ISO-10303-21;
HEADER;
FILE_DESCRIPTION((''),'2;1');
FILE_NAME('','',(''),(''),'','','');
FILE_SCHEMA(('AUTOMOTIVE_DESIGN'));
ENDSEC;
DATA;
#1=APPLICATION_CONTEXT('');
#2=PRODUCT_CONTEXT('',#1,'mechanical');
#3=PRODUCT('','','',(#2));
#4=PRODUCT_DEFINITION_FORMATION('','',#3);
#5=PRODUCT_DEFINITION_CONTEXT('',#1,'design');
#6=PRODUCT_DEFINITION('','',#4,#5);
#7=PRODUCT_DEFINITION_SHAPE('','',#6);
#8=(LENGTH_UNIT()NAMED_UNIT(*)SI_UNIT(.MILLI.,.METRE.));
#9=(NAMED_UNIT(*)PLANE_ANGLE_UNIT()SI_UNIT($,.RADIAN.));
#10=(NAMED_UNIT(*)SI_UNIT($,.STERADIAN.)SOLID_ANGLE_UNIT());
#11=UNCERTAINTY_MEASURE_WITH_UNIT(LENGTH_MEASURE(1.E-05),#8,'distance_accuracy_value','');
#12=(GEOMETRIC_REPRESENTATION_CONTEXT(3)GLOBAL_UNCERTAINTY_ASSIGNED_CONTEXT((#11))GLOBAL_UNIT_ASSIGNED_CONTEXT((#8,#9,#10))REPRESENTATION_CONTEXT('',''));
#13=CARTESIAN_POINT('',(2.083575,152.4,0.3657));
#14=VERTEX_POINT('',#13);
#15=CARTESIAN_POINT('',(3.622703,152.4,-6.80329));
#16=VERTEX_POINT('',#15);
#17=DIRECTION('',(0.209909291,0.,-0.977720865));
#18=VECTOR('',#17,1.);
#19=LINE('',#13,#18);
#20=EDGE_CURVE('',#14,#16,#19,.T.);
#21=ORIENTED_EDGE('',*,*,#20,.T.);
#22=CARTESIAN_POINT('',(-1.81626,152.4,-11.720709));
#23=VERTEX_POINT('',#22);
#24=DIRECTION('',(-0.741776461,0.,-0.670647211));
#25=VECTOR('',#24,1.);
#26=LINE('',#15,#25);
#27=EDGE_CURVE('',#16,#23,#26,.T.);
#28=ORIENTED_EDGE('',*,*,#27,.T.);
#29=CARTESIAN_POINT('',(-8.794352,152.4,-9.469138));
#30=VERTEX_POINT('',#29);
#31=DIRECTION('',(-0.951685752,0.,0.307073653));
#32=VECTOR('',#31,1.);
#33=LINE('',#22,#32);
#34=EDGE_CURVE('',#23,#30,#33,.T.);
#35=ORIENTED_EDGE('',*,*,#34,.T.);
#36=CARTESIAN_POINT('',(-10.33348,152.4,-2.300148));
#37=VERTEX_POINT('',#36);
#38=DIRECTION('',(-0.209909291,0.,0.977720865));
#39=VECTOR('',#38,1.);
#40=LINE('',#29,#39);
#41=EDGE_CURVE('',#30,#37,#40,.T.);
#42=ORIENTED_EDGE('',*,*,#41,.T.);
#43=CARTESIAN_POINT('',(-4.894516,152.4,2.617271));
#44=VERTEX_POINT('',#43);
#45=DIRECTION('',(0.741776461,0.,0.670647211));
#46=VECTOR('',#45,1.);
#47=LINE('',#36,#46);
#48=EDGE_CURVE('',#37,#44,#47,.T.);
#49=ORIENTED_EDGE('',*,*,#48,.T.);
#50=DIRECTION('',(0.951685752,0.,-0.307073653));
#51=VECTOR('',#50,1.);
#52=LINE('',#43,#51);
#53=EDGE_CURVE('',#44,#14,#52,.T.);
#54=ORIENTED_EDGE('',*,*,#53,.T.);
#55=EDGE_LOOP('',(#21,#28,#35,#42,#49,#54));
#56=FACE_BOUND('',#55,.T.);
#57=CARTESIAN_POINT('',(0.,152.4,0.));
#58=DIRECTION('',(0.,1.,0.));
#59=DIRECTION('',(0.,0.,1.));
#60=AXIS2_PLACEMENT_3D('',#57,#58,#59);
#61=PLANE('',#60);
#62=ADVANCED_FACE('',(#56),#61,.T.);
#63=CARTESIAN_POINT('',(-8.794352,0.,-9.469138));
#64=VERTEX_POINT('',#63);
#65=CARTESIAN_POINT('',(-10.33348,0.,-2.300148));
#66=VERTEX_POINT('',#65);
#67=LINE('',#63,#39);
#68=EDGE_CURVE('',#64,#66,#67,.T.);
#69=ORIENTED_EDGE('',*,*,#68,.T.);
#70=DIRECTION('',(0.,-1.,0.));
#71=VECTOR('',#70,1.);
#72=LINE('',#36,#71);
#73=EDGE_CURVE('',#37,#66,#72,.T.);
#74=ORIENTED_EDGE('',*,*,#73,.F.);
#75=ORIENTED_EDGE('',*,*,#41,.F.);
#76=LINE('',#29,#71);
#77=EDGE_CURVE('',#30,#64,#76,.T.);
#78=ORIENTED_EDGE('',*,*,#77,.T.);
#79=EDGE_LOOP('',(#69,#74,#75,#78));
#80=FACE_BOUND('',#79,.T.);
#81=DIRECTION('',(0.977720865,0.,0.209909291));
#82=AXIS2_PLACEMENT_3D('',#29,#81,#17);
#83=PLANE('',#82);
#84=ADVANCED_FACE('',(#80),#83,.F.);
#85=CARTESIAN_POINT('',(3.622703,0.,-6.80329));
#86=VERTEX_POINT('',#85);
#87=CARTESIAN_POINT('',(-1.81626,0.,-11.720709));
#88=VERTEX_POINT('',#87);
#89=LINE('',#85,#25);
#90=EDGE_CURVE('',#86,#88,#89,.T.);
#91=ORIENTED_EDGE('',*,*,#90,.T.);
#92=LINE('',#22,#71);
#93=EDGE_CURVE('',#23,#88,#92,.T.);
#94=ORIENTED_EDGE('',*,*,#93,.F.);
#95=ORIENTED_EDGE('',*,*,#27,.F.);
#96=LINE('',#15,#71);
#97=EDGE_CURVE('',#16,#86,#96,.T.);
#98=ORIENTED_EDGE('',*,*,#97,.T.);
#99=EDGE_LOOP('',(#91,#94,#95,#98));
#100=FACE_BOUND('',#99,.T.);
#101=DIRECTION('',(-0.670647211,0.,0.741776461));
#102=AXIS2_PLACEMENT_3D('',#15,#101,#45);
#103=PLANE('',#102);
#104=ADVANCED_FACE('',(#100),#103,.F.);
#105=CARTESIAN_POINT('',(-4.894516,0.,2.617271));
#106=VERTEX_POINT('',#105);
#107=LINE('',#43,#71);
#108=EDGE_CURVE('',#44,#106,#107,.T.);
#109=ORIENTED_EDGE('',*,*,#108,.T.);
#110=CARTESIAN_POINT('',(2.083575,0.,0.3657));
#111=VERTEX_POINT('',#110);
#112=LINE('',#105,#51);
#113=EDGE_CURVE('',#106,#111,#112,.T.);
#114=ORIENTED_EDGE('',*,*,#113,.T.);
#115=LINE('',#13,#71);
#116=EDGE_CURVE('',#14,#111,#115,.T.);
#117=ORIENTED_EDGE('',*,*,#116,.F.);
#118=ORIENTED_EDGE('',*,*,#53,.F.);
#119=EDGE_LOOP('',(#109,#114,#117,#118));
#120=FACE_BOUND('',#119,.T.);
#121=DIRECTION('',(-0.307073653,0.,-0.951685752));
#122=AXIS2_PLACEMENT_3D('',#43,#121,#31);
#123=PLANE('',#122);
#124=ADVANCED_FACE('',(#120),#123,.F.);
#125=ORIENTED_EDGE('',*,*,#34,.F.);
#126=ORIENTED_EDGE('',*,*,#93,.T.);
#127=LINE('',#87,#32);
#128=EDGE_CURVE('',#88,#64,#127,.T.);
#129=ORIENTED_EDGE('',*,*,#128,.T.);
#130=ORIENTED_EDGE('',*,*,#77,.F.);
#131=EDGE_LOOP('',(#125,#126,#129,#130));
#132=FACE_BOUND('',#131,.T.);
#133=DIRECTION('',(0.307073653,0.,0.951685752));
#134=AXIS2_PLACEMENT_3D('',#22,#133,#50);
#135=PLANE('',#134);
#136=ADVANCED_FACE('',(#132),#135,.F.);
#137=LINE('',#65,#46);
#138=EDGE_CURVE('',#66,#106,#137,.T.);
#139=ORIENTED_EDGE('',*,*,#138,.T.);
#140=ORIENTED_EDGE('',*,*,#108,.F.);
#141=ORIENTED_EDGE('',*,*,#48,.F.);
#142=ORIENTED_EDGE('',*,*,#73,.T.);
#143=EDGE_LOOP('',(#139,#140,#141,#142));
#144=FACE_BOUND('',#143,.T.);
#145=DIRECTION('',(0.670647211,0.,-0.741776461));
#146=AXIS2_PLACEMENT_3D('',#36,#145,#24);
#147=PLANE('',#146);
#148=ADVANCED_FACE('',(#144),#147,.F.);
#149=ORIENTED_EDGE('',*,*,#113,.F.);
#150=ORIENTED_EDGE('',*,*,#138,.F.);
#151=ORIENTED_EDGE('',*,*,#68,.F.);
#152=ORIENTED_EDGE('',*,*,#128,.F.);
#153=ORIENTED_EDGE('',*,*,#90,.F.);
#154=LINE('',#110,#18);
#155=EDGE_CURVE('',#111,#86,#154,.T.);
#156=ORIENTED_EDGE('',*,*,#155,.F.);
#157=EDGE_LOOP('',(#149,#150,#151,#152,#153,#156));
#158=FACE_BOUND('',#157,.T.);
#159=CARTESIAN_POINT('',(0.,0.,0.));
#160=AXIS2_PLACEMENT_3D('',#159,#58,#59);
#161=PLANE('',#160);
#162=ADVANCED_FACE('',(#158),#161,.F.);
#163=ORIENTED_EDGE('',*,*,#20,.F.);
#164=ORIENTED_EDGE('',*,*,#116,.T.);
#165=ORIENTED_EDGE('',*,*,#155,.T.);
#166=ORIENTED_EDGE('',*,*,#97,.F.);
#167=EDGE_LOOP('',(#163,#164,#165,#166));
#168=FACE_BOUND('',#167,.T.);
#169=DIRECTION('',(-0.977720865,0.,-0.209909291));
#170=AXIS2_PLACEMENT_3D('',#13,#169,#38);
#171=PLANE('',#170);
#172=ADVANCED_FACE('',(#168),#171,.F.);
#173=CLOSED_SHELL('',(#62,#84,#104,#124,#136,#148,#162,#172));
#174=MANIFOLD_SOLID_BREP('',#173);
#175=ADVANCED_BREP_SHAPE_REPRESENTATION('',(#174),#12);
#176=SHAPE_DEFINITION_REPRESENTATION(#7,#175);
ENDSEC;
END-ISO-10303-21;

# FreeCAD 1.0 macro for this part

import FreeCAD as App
import Part
import Sketcher

V = App.Vector
Q = App.Units.Quantity


def add_polygon(sketch, points):
    """Adds a closed chain of lines whose ends are joined by coincident constraints."""
    first, n = sketch.GeometryCount, len(points)
    for a, b in zip(points, points[1:] + points[:1]):
        sketch.addGeometry(Part.LineSegment(App.Vector(*a, 0), App.Vector(*b, 0)), False)
    for i in range(n):
        sketch.addConstraint(Sketcher.Constraint("Coincident", first + i, 2, first + (i + 1) % n, 1))

doc = App.newDocument("Part")
body = doc.addObject("PartDesign::Body", "Body")

# Sketch on XZ plane
sketch1 = body.newObject("Sketcher::SketchObject", "Sketch")
sketch1.AttachmentSupport = (doc.getObject("XZ_Plane"), [""])
sketch1.MapMode = "FlatFace"
add_polygon(sketch1, [(2, 0), (4, -7), (-2, -12), (-9, -9), (-10, -2), (-5, 3)])  # lines 0-5
sketch1.addConstraint([
    Sketcher.Constraint("Parallel", 0, 3),
    Sketcher.Constraint("Parallel", 1, 4),
    Sketcher.Constraint("Parallel", 2, 5),
    Sketcher.Constraint("Equal", 0, 1),
    Sketcher.Constraint("Equal", 1, 2),
    Sketcher.Constraint("Equal", 2, 3),
    Sketcher.Constraint("DistanceY", -1, 1, 5, 2, 0.3657),
    Sketcher.Constraint("Distance", 0, 7.332348),
    Sketcher.Constraint("DistanceY", 0, 2, -1, 1, 6.80329),
    Sketcher.Constraint("DistanceX", 1, 2, -1, 1, 1.81626),
    Sketcher.Constraint("DistanceY", 1, 2, -1, 1, 11.720709),
    Sketcher.Constraint("DistanceX", 2, 2, -1, 1, 8.794352),
])
pad1 = body.newObject("PartDesign::Pad", "Pad")
pad1.Profile = sketch1
pad1.Length = Q("6 in")
pad1.Reversed = True

doc.recompute()
